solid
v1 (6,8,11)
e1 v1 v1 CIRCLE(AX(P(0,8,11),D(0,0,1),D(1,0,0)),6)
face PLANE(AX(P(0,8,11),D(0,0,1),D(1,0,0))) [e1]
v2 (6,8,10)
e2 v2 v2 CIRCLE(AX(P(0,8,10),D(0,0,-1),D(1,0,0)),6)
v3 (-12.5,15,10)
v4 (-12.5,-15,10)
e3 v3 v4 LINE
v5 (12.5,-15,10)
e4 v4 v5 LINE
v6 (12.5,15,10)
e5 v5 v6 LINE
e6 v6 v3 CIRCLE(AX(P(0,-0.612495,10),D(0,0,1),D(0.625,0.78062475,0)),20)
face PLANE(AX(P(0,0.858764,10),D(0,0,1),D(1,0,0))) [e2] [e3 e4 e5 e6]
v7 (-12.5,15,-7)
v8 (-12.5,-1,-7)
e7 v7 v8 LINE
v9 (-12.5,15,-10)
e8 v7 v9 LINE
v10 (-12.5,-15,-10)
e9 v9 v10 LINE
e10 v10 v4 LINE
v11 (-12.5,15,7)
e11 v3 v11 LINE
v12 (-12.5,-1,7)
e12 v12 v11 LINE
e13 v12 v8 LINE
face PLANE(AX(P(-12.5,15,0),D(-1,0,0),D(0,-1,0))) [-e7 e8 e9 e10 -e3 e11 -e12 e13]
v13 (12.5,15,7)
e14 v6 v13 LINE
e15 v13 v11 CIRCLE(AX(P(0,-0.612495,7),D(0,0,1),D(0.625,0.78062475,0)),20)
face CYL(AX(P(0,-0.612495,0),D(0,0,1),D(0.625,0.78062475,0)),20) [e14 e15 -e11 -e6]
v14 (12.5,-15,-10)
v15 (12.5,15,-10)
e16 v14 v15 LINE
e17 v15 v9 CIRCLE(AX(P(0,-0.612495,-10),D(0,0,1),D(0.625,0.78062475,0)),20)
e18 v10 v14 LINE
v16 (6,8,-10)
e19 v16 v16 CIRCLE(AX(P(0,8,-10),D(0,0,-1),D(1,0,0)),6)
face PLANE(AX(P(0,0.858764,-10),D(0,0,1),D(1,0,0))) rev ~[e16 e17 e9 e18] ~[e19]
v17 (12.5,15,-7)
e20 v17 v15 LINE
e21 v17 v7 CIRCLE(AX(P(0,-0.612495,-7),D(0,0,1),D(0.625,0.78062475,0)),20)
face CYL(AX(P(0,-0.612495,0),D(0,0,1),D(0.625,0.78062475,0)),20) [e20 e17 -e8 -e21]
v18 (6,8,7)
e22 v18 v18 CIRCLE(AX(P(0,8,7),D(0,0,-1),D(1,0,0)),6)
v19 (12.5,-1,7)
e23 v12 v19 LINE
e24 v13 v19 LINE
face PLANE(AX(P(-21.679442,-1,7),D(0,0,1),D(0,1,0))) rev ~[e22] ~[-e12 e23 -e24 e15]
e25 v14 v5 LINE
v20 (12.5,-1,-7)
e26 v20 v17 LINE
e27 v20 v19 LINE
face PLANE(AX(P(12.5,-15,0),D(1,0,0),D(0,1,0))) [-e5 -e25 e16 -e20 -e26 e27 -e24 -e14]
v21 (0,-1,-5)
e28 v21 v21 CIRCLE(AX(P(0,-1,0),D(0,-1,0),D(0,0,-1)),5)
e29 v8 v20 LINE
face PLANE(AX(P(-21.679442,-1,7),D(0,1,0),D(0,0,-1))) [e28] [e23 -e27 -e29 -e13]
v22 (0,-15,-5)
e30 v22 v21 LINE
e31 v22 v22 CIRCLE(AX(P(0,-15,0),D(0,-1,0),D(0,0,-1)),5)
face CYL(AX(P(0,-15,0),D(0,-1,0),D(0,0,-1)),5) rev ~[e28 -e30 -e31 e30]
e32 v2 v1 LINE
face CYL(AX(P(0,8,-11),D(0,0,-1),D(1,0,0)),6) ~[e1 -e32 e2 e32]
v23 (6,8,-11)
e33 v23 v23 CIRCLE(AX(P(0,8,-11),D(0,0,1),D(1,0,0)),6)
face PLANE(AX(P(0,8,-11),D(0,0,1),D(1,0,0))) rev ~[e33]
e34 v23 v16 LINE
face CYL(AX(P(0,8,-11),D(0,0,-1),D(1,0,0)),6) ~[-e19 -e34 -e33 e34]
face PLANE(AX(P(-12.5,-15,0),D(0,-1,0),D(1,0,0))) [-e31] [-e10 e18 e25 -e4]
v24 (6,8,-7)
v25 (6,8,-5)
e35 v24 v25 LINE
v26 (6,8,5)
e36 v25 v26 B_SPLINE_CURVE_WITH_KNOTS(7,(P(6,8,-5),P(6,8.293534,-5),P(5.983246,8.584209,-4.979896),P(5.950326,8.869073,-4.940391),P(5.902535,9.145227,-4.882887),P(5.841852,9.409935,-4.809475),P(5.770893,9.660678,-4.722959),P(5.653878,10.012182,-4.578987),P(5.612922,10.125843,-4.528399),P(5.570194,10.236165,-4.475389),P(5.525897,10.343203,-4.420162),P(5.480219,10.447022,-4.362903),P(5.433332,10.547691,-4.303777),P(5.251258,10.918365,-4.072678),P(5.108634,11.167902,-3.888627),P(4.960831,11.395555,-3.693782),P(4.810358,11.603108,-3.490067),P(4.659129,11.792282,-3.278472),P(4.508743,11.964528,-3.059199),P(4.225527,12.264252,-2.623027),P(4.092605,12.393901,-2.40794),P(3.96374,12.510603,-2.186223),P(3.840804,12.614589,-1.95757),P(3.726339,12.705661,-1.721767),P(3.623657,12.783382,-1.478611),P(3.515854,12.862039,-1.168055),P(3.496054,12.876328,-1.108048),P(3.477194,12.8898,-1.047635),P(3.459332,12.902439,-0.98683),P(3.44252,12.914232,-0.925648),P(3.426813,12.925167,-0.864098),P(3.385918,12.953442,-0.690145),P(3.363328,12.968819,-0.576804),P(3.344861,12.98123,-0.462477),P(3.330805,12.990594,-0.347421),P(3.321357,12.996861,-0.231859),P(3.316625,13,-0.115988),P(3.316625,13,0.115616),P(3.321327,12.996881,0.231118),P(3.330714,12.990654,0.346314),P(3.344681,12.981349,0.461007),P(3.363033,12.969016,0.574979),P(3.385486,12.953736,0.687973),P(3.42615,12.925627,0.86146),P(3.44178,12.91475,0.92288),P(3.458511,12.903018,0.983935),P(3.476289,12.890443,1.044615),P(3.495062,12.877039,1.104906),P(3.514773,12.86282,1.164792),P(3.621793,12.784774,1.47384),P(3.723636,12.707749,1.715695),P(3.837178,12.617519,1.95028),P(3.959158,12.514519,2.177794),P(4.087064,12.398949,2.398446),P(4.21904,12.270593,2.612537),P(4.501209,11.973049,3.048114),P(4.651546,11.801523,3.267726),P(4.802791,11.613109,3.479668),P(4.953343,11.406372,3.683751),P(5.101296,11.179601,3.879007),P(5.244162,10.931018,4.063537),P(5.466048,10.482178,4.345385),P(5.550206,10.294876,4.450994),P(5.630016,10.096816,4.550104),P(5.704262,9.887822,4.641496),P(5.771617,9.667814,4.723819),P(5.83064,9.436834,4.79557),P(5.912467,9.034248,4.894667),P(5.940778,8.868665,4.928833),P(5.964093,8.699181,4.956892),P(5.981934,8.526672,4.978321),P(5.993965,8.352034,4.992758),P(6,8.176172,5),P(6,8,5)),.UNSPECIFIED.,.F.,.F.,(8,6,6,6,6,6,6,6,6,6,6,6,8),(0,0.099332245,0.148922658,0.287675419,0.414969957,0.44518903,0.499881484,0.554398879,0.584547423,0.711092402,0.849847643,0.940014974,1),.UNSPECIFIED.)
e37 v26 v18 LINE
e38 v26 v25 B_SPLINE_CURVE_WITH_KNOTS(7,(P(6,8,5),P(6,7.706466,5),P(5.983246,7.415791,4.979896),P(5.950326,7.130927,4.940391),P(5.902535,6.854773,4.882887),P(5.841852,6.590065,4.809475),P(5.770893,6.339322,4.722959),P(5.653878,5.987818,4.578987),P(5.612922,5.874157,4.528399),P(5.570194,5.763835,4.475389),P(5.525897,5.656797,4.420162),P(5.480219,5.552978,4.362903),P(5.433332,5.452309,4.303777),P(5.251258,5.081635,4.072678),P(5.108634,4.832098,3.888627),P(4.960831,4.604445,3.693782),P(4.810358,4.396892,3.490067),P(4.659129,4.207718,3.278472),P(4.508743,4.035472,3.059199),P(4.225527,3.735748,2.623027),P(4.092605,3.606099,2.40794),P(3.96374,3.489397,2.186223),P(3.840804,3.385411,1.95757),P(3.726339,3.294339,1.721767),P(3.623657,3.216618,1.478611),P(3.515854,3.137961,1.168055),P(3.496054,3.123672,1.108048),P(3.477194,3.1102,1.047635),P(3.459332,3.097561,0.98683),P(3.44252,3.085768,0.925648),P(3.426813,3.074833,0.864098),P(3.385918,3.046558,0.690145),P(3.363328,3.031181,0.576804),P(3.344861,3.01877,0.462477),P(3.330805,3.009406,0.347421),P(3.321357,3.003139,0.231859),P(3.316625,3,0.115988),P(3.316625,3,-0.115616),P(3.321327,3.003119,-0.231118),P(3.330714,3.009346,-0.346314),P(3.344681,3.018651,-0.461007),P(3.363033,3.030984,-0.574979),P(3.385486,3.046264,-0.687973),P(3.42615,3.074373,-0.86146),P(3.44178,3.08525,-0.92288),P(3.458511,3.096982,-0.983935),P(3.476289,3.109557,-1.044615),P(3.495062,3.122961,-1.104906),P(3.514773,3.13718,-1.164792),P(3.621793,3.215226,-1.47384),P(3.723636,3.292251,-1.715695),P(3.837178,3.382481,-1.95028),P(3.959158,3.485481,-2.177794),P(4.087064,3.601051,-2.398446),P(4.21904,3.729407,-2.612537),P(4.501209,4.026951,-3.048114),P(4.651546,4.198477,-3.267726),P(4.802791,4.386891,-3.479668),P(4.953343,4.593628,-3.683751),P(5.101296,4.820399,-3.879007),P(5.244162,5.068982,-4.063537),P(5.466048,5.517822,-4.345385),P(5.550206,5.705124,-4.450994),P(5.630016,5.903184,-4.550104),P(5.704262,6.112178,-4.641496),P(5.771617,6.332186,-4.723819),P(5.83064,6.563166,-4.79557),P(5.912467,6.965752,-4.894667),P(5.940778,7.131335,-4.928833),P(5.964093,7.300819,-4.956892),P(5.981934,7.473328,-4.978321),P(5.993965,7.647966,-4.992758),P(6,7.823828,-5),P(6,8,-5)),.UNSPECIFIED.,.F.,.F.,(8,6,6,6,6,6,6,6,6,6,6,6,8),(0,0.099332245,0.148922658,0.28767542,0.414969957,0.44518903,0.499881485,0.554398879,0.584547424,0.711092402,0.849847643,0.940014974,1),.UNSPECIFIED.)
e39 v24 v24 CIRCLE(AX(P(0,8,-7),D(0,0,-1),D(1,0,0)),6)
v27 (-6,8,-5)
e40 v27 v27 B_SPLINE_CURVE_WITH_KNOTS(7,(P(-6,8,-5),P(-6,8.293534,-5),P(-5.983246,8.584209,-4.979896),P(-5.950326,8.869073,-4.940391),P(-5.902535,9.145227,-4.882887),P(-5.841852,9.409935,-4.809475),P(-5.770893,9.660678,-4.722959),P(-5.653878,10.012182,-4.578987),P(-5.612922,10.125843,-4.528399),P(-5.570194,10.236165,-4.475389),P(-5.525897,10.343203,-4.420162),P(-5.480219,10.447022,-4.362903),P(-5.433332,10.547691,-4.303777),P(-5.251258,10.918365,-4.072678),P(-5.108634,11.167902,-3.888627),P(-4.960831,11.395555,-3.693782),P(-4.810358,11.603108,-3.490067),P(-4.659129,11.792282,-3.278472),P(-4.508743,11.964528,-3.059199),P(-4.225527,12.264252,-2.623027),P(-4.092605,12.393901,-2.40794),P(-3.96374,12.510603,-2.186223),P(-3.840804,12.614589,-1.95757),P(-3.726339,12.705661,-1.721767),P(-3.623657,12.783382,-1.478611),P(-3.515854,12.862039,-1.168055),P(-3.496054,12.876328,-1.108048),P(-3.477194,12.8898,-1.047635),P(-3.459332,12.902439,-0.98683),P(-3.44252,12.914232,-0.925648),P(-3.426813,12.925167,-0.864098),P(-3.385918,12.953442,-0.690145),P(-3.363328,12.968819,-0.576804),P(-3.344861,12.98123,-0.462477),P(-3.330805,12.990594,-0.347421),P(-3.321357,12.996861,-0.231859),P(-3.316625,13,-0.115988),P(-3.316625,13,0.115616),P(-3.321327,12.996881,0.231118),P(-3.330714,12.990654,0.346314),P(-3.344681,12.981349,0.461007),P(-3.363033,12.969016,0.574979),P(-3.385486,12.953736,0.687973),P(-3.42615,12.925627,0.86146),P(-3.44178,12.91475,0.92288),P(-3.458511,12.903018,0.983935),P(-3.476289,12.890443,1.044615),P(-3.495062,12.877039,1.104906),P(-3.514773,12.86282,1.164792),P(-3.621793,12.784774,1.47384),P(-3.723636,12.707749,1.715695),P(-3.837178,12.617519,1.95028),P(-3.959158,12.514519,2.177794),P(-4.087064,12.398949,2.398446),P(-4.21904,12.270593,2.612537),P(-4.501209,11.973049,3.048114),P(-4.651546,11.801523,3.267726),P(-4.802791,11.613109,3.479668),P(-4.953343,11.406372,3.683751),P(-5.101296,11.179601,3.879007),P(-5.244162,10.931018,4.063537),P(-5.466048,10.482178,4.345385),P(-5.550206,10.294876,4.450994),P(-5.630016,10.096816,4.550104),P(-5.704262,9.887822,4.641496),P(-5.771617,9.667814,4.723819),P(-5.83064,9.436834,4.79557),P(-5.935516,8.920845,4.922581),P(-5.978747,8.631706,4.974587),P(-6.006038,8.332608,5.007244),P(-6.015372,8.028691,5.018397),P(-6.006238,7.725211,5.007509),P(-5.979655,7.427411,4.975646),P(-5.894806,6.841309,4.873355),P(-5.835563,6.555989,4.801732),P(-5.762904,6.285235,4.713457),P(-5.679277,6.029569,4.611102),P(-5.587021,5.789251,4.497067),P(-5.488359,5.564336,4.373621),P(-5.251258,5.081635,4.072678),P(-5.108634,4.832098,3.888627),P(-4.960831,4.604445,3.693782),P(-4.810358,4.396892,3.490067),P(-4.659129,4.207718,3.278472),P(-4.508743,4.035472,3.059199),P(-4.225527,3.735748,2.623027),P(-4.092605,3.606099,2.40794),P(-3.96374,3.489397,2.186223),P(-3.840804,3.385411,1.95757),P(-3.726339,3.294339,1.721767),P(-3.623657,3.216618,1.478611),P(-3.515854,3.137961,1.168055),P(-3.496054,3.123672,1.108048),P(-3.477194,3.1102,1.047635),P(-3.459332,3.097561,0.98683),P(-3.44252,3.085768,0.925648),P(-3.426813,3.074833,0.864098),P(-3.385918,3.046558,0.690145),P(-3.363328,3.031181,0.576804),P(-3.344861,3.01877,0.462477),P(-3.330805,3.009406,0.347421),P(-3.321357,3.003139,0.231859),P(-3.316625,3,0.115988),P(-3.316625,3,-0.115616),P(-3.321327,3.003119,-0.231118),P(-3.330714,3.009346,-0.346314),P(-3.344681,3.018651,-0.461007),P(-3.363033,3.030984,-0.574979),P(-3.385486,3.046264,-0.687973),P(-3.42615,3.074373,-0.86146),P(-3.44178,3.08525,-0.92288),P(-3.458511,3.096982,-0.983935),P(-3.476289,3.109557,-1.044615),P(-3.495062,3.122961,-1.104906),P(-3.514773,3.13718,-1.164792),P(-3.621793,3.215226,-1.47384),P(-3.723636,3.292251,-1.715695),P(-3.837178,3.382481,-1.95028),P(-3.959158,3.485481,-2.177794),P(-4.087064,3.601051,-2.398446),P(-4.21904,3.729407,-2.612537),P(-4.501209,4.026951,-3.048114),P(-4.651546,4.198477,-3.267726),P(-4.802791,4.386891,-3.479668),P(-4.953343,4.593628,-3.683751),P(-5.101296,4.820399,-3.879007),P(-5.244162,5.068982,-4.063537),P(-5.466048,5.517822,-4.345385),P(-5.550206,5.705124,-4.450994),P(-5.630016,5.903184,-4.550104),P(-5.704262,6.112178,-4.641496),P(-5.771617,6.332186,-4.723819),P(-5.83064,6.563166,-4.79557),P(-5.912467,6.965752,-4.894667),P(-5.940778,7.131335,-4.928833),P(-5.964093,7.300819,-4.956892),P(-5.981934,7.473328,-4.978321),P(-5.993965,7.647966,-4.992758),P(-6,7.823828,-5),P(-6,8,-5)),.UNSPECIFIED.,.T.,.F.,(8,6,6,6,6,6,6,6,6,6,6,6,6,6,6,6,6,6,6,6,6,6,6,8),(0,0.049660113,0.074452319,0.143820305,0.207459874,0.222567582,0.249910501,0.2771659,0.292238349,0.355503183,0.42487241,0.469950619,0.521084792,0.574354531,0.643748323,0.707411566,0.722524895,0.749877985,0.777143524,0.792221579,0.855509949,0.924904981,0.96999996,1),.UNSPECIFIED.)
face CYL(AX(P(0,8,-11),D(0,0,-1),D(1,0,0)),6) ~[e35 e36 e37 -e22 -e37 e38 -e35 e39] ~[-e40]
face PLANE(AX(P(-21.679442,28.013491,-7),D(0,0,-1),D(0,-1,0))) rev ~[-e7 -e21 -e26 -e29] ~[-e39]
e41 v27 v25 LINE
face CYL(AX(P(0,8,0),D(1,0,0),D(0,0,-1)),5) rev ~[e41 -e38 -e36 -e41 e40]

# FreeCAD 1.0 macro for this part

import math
import FreeCAD as App
import Part
import Sketcher
from FreeCAD import Vector
Q = App.Units.Quantity

doc = App.newDocument("Part")
body = doc.addObject("PartDesign::Body", "Body")

# Sketch on XY plane
sketch1 = body.newObject("Sketcher::SketchObject", "Sketch")
sketch1.AttachmentSupport = (doc.getObject("XY_Plane"), [""])
sketch1.MapMode = "FlatFace"
sketch1.addGeometry(Part.LineSegment(Vector(-12, 15, 0), Vector(-12, -15, 0)), False)
sketch1.addGeometry(Part.LineSegment(Vector(-12, -15, 0), Vector(12, -15, 0)), False)
sketch1.addGeometry(Part.LineSegment(Vector(12, -15, 0), Vector(12, 15, 0)), False)
sketch1.addGeometry(Part.ArcOfCircle(Part.Circle(Vector(0, -1, 0), Vector(0, 0, 1), 20), math.radians(51), math.radians(129)), False)
sketch1.addGeometry(Part.Circle(Vector(0, 8, 0), Vector(0, 0, 1), 5), False)
sketch1.addConstraint(Sketcher.Constraint("Coincident", 0, 2, 1, 1))
sketch1.addConstraint(Sketcher.Constraint("Coincident", 1, 2, 2, 1))
sketch1.addConstraint(Sketcher.Constraint("Coincident", 2, 2, 3, 1))
sketch1.addConstraint(Sketcher.Constraint("Coincident", 3, 2, 0, 1))
sketch1.addConstraint(Sketcher.Constraint("Vertical", 0))
sketch1.addConstraint(Sketcher.Constraint("Horizontal", 1))
sketch1.addConstraint(Sketcher.Constraint("Vertical", 2))
sketch1.addConstraint(Sketcher.Constraint("Symmetric", 0, 2, 2, 2, -1, 1))
sketch1.addConstraint(Sketcher.Constraint("PointOnObject", 3, 3, -2))
sketch1.addConstraint(Sketcher.Constraint("PointOnObject", 4, 3, -2))
sketch1.addConstraint(Sketcher.Constraint("Diameter", 4, Q("10 mm")))
sketch1.addConstraint(Sketcher.Constraint("Radius", 3, Q("20 mm")))
sketch1.addConstraint(Sketcher.Constraint("DistanceX", 1, 1, 1, 2, Q("25 mm")))
sketch1.addConstraint(Sketcher.Constraint("DistanceY", 0, 2, 0, 1, Q("30 mm")))
sketch1.addConstraint(Sketcher.Constraint("DistanceY", -1, 1, 4, 3, Q("8 mm")))
pad1 = body.newObject("PartDesign::Pad", "Pad")
pad1.Profile = sketch1
pad1.Length = 20
pad1.Midplane = True

# Sketch on YZ plane
sketch2 = body.newObject("Sketcher::SketchObject", "Sketch001")
sketch2.AttachmentSupport = (doc.getObject("YZ_Plane"), [""])
sketch2.MapMode = "FlatFace"
sketch2.AttachmentOffset = App.Placement(Vector(0, 0, 12.5), App.Rotation())
sketch2.addGeometry(Part.LineSegment(Vector(-1, 7, 0), Vector(-1, -7, 0)), False)
sketch2.addGeometry(Part.LineSegment(Vector(-1, -7, 0), Vector(28, -7, 0)), False)
sketch2.addGeometry(Part.LineSegment(Vector(28, -7, 0), Vector(28, 7, 0)), False)
sketch2.addGeometry(Part.LineSegment(Vector(28, 7, 0), Vector(-1, 7, 0)), False)
sketch2.addConstraint(Sketcher.Constraint("Coincident", 0, 2, 1, 1))
sketch2.addConstraint(Sketcher.Constraint("Coincident", 1, 2, 2, 1))
sketch2.addConstraint(Sketcher.Constraint("Coincident", 2, 2, 3, 1))
sketch2.addConstraint(Sketcher.Constraint("Coincident", 3, 2, 0, 1))
sketch2.addConstraint(Sketcher.Constraint("Vertical", 0))
sketch2.addConstraint(Sketcher.Constraint("Horizontal", 1))
sketch2.addConstraint(Sketcher.Constraint("Vertical", 2))
sketch2.addConstraint(Sketcher.Constraint("Horizontal", 3))
sketch2.addConstraint(Sketcher.Constraint("DistanceY", 0, 2, 0, 1, Q("14 mm")))
sketch2.addConstraint(Sketcher.Constraint("DistanceX", 0, 2, -1, 1, Q("1 mm")))
sketch2.addConstraint(Sketcher.Constraint("DistanceY", 0, 2, -1, 1, Q("7 mm")))
sketch2.addConstraint(Sketcher.Constraint("DistanceX", 1, 1, 1, 2, Q("29.013491 mm")))
pocket1 = body.newObject("PartDesign::Pocket", "Pocket")
pocket1.Profile = sketch2
pocket1.Type = "ThroughAll"
pocket1.Midplane = True

# Sketch on XY plane
sketch3 = body.newObject("Sketcher::SketchObject", "Sketch002")
sketch3.AttachmentSupport = (doc.getObject("XY_Plane"), [""])
sketch3.MapMode = "FlatFace"
sketch3.AttachmentOffset = App.Placement(Vector(0, 0, 10), App.Rotation())
sketch3.addGeometry(Part.Circle(Vector(0, 8, 0), Vector(0, 0, 1), 6), False)
sketch3.addConstraint(Sketcher.Constraint("PointOnObject", 0, 3, -2))
sketch3.addConstraint(Sketcher.Constraint("Diameter", 0, Q("12 mm")))
sketch3.addConstraint(Sketcher.Constraint("DistanceY", -1, 1, 0, 3, Q("8 mm")))
pad2 = body.newObject("PartDesign::Pad", "Pad001")
pad2.Profile = sketch3
pad2.Type = "TwoLengths"
pad2.Length = 1
pad2.Length2 = 21

# Sketch on YZ plane
sketch4 = body.newObject("Sketcher::SketchObject", "Sketch003")
sketch4.AttachmentSupport = (doc.getObject("YZ_Plane"), [""])
sketch4.MapMode = "FlatFace"
sketch4.addGeometry(Part.Circle(Vector(8, 0, 0), Vector(0, 0, 1), 5), False)
sketch4.addConstraint(Sketcher.Constraint("PointOnObject", 0, 3, -1))
sketch4.addConstraint(Sketcher.Constraint("Diameter", 0, Q("10 mm")))
sketch4.addConstraint(Sketcher.Constraint("DistanceX", -1, 1, 0, 3, Q("8 mm")))
pocket2 = body.newObject("PartDesign::Pocket", "Pocket001")
pocket2.Profile = sketch4
pocket2.Length = 15
pocket2.Midplane = True

# Sketch on XZ plane
sketch5 = body.newObject("Sketcher::SketchObject", "Sketch004")
sketch5.AttachmentSupport = (doc.getObject("XZ_Plane"), [""])
sketch5.MapMode = "FlatFace"
sketch5.AttachmentOffset = App.Placement(Vector(0, 0, 15), App.Rotation())
sketch5.addGeometry(Part.Circle(Vector(0, 0, 0), Vector(0, 0, 1), 5), False)
sketch5.addConstraint(Sketcher.Constraint("Coincident", 0, 3, -1, 1))
sketch5.addConstraint(Sketcher.Constraint("Diameter", 0, Q("10 mm")))
pocket3 = body.newObject("PartDesign::Pocket", "Pocket002")
pocket3.Profile = sketch5
pocket3.Length = 15

doc.recompute()
